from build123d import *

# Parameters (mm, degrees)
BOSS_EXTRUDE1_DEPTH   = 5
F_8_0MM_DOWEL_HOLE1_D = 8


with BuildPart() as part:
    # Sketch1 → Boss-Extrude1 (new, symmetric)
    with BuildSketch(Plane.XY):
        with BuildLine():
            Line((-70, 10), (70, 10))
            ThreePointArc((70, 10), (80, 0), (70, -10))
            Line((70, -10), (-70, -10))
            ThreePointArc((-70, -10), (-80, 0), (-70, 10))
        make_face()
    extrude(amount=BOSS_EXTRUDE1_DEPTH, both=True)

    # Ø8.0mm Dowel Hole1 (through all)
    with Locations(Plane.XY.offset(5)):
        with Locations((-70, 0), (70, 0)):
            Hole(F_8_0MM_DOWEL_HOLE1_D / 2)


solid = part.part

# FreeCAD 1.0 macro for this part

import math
import FreeCAD as App
import Part
import Sketcher

V = App.Vector
Q = App.Units.Quantity

doc = App.newDocument("Part")
params = doc.addObject("Spreadsheet::Sheet", "Params")
for row, (alias, value) in enumerate([
    ("sketch1_radius", "10 mm"),
    ("sketch1_width", "140 mm"),
    ("pad1_length", "10 mm"),
    ("sketch2_diameter", "8 mm"),
    ("hole_diameter", "8 mm"),
], start=1):
    params.set(f"A{row}", alias)
    params.set(f"B{row}", "=" + value)
    params.setAlias(f"B{row}", alias)

body = doc.addObject("PartDesign::Body", "Body")

# Sketch on XY plane
sketch1 = body.newObject("Sketcher::SketchObject", "Sketch")
sketch1.AttachmentSupport = (doc.getObject("XY_Plane"), [""])
sketch1.MapMode = "FlatFace"
sketch1.addGeometry([
    Part.LineSegment(V(70, 10, 0), V(-70, 10, 0)),
    Part.ArcOfCircle(Part.Circle(V(-70, 0, 0), V(0, 0, 1), 10), math.radians(90), math.radians(270)),
    Part.LineSegment(V(-70, -10, 0), V(70, -10, 0)),
    Part.ArcOfCircle(Part.Circle(V(70, 0, 0), V(0, 0, 1), 10), math.radians(-90), math.radians(90)),
], False)
sketch1.addConstraint([
    Sketcher.Constraint("Tangent", 0, 2, 1, 1),
    Sketcher.Constraint("Tangent", 1, 2, 2, 1),
    Sketcher.Constraint("Tangent", 2, 2, 3, 1),
    Sketcher.Constraint("Tangent", 3, 2, 0, 1),
    Sketcher.Constraint("Horizontal", 0),
    Sketcher.Constraint("Horizontal", 2),
    Sketcher.Constraint("Symmetric", 1, 3, 3, 3, -1, 1),
    Sketcher.Constraint("Radius", 1, Q("10 mm")),
    Sketcher.Constraint("DistanceX", 0, 2, 0, 1, Q("140 mm")),
])
sketch1.setExpression("Constraints[7]", "Params.sketch1_radius")
sketch1.setExpression("Constraints[8]", "Params.sketch1_width")
pad1 = body.newObject("PartDesign::Pad", "Pad")
pad1.Profile = sketch1
pad1.setExpression("Length", "Params.pad1_length")
pad1.Midplane = True

# Sketch on XY plane
sketch2 = body.newObject("Sketcher::SketchObject", "Sketch001")
sketch2.AttachmentSupport = (doc.getObject("XY_Plane"), [""])
sketch2.MapMode = "FlatFace"
sketch2.AttachmentOffset = App.Placement(V(0, 0, 5), App.Rotation())
sketch2.addGeometry([
    Part.Circle(V(-70, 0, 0), V(0, 0, 1), 4),
    Part.Circle(V(70, 0, 0), V(0, 0, 1), 4),
], False)
sketch2.addConstraint([
    Sketcher.Constraint("Equal", 0, 1),
    Sketcher.Constraint("Symmetric", 0, 3, 1, 3, -1, 1),
    Sketcher.Constraint("PointOnObject", 0, 3, -1),
    Sketcher.Constraint("Diameter", 0, Q("8 mm")),
    Sketcher.Constraint("DistanceX", 0, 3, -1, 1, Q("70 mm")),
])
sketch2.setExpression("Constraints[3]", "Params.sketch2_diameter")
doc.recompute()
hole = body.newObject("PartDesign::Hole", "Hole")
hole.Profile = sketch2
hole.ThreadType = "None"
hole.setExpression("Diameter", "Params.hole_diameter")
hole.DepthType = "ThroughAll"

doc.recompute()
